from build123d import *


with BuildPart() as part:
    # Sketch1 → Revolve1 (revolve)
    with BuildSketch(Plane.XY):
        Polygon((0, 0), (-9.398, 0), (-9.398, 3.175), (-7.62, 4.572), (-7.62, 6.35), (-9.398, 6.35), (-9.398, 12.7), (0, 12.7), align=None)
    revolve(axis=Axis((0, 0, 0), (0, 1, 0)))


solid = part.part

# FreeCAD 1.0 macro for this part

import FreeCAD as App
import Part
import Sketcher
Q = App.Units.Quantity


def add_polygon(sketch, points):
    """Adds a closed chain of lines whose ends are joined by coincident constraints."""
    first, n = sketch.GeometryCount, len(points)
    for a, b in zip(points, points[1:] + points[:1]):
        sketch.addGeometry(Part.LineSegment(App.Vector(*a, 0), App.Vector(*b, 0)), False)
    for i in range(n):
        sketch.addConstraint(Sketcher.Constraint("Coincident", first + i, 2, first + (i + 1) % n, 1))

doc = App.newDocument("Part")
body = doc.addObject("PartDesign::Body", "Body")

# Sketch on XY plane
sketch1 = body.newObject("Sketcher::SketchObject", "Sketch")
sketch1.AttachmentSupport = (doc.getObject("XY_Plane"), [""])
sketch1.MapMode = "FlatFace"
add_polygon(sketch1, [(-9.4, 0), (0, 0), (0, 12.7), (-9.4, 12.7), (-9.4, 6.3), (-7.6, 6.3), (-7.6, 4.6), (-9.4, 3.2)])  # lines 0-7
sketch1.addConstraint([
    Sketcher.Constraint("Horizontal", 0),
    Sketcher.Constraint("Vertical", 1),
    Sketcher.Constraint("Horizontal", 2),
    Sketcher.Constraint("Vertical", 3),
    Sketcher.Constraint("Horizontal", 4),
    Sketcher.Constraint("Vertical", 5),
    Sketcher.Constraint("Vertical", 7),
    Sketcher.Constraint("Coincident", 0, 2, -1, 1),
    Sketcher.Constraint("Vertical", 3, 2, 6, 2),
    Sketcher.Constraint("Equal", 4, 5),
    Sketcher.Constraint("DistanceY", 1, 1, 1, 2, Q("0.5 in")),
    Sketcher.Constraint("DistanceX", 0, 1, 0, 2, Q("0.37 in")),
    Sketcher.Constraint("DistanceX", 4, 1, 4, 2, Q("0.07 in")),
    Sketcher.Constraint("DistanceY", 3, 2, 3, 1, Q("0.25 in")),
    Sketcher.Constraint("DistanceY", 7, 2, 7, 1, Q("0.125 in")),
])
revolution = body.newObject("PartDesign::Revolution", "Revolution")
revolution.Profile = sketch1
revolution.ReferenceAxis = (sketch1, ["V_Axis"])
revolution.Angle = 360

doc.recompute()
